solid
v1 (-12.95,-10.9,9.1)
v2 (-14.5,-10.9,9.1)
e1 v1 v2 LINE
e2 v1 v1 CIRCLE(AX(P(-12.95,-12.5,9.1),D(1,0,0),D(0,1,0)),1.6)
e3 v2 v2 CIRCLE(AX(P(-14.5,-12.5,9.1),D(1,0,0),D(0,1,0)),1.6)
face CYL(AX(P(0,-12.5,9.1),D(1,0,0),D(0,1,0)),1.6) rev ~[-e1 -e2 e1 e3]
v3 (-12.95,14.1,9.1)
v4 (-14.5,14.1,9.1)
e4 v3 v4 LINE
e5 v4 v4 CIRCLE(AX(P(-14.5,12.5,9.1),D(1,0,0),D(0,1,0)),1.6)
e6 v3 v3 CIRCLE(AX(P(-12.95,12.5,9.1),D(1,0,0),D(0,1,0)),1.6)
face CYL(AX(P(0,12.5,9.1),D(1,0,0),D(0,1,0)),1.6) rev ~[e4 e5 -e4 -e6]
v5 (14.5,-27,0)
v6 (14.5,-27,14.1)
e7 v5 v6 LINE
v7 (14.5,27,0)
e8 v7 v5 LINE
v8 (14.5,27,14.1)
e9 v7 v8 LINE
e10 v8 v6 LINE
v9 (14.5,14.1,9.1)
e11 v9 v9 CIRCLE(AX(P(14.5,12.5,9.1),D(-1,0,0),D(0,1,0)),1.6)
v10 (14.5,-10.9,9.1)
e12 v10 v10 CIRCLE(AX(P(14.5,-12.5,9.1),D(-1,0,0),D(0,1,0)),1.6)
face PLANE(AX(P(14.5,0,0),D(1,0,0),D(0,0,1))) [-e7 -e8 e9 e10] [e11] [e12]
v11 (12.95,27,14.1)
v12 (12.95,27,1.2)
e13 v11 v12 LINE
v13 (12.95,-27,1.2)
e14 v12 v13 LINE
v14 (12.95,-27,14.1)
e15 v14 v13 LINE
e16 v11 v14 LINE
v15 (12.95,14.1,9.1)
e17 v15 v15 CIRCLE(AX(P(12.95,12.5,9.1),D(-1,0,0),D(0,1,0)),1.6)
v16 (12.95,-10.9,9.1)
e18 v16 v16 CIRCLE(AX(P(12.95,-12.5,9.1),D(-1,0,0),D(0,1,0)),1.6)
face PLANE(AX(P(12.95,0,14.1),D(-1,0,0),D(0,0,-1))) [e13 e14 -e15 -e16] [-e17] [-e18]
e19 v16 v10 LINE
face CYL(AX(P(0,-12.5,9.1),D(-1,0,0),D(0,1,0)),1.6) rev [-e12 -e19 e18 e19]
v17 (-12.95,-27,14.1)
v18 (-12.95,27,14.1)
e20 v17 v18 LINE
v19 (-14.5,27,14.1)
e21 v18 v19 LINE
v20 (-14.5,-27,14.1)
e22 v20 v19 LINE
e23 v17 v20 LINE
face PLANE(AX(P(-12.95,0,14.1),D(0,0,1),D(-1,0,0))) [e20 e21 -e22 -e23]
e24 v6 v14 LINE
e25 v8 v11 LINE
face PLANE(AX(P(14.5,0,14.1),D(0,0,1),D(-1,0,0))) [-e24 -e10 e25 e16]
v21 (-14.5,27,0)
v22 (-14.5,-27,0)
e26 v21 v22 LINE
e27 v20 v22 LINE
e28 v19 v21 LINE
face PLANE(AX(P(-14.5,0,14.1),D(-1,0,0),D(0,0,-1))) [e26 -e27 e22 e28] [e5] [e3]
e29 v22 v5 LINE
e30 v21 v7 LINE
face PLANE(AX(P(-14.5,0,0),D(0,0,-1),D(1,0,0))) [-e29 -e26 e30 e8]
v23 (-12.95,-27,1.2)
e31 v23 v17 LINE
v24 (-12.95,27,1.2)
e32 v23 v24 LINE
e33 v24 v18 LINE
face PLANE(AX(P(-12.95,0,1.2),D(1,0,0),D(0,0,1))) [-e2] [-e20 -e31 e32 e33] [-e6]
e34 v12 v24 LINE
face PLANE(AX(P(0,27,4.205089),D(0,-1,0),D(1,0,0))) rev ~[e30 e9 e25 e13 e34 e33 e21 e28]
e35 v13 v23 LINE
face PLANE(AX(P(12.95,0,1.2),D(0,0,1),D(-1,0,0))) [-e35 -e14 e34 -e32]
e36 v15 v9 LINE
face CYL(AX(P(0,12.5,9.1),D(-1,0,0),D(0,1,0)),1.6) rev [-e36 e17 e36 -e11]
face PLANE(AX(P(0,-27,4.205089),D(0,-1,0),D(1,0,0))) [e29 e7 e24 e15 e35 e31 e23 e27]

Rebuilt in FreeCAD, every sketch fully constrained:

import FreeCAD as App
import Part
import Sketcher
from FreeCAD import Vector
Q = App.Units.Quantity


def add_polygon(sketch, points):
    """Adds a closed chain of lines whose ends are joined by coincident constraints."""
    first, n = sketch.GeometryCount, len(points)
    for a, b in zip(points, points[1:] + points[:1]):
        sketch.addGeometry(Part.LineSegment(App.Vector(*a, 0), App.Vector(*b, 0)), False)
    for i in range(n):
        sketch.addConstraint(Sketcher.Constraint("Coincident", first + i, 2, first + (i + 1) % n, 1))

doc = App.newDocument("Part")
body = doc.addObject("PartDesign::Body", "Body")

# Sketch on XZ plane
sketch1 = doc.addObject("Sketcher::SketchObject", "Sketch")
body.addObject(sketch1)
sketch1.AttachmentSupport = (doc.XZ_Plane, [""])
sketch1.MapMode = "FlatFace"
add_polygon(sketch1, [(-14.5, 14.1), (-14.5, 0), (14.5, 0), (14.5, 14.1), (12.9, 14.1), (12.9, 1.2), (-12.9, 1.2), (-12.9, 14.1)])  # lines 0-7
sketch1.addConstraint([
    Sketcher.Constraint("Vertical", 0),
    Sketcher.Constraint("Horizontal", 1),
    Sketcher.Constraint("Vertical", 2),
    Sketcher.Constraint("Horizontal", 3),
    Sketcher.Constraint("Vertical", 4),
    Sketcher.Constraint("Horizontal", 5),
    Sketcher.Constraint("Vertical", 6),
    Sketcher.Constraint("Horizontal", 7),
    Sketcher.Constraint("Symmetric", 0, 2, 1, 2, -1, 1),
    Sketcher.Constraint("Symmetric", 3, 2, 6, 2, -2),
    Sketcher.Constraint("DistanceX", 1, 1, 1, 2, Q("29 mm")),
    Sketcher.Constraint("DistanceX", 5, 2, 5, 1, Q("25.9 mm")),
    Sketcher.Constraint("DistanceY", 0, 2, 0, 1, Q("14.1 mm")),
    Sketcher.Constraint("DistanceY", 4, 2, 4, 1, Q("12.9 mm")),
])
pad1 = doc.addObject("PartDesign::Pad", "Pad")
body.addObject(pad1)
pad1.Profile = sketch1
pad1.Length = 54
pad1.Midplane = True

# Sketch on YZ plane
sketch2 = doc.addObject("Sketcher::SketchObject", "Sketch001")
body.addObject(sketch2)
sketch2.AttachmentSupport = (doc.YZ_Plane, [""])
sketch2.MapMode = "FlatFace"
sketch2.addGeometry([
    Part.Circle(Vector(-12.5, 9.1, 0), Vector(0, 0, 1), 1.6),
    Part.Circle(Vector(12.5, 9.1, 0), Vector(0, 0, 1), 1.6),
], False)
sketch2.addConstraint([
    Sketcher.Constraint("Equal", 0, 1),
    Sketcher.Constraint("Symmetric", 0, 3, 1, 3, -2),
    Sketcher.Constraint("Diameter", 0, Q("3.2 mm")),
    Sketcher.Constraint("DistanceX", 0, 3, 1, 3, Q("25 mm")),
    Sketcher.Constraint("DistanceY", -1, 1, 0, 3, Q("9.1 mm")),
])
pocket1 = doc.addObject("PartDesign::Pocket", "Pocket")
body.addObject(pocket1)
pocket1.Profile = sketch2
pocket1.Type = "ThroughAll"
pocket1.Midplane = True

doc.recompute()
